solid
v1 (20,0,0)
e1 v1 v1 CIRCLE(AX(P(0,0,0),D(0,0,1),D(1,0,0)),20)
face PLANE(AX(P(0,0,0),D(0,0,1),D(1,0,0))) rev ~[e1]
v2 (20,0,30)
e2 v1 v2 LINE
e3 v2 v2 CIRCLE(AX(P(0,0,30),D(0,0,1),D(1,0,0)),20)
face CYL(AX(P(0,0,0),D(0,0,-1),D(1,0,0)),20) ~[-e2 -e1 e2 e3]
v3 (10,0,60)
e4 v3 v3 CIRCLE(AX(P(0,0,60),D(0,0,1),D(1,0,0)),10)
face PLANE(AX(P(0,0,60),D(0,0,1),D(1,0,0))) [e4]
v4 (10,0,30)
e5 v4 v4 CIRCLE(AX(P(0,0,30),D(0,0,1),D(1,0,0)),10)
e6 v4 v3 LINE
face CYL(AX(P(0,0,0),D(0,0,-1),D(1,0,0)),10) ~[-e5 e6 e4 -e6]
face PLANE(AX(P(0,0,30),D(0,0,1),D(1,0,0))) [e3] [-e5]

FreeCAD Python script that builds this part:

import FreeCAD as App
import Part
import Sketcher

doc = App.newDocument("Part")
body = doc.addObject("PartDesign::Body", "Body")

# Sketch on XY plane
sketch1 = doc.addObject("Sketcher::SketchObject", "Sketch")
body.addObject(sketch1)
sketch1.AttachmentSupport = (doc.XY_Plane, [""])
sketch1.MapMode = "FlatFace"
sketch1.addGeometry(Part.Circle(App.Vector(0, 0, 0), App.Vector(0, 0, 1), 10), False)
sketch1.addConstraint([
    Sketcher.Constraint("Coincident", 0, 3, -1, 1),
    Sketcher.Constraint("Diameter", 0, 20.0),
])
pad1 = doc.addObject("PartDesign::Pad", "Pad")
body.addObject(pad1)
pad1.Profile = sketch1
pad1.Length = 60

# Sketch on XY plane
sketch2 = doc.addObject("Sketcher::SketchObject", "Sketch001")
body.addObject(sketch2)
sketch2.AttachmentSupport = (doc.XY_Plane, [""])
sketch2.MapMode = "FlatFace"
sketch2.addGeometry([
    Part.Circle(App.Vector(0, 0, 0), App.Vector(0, 0, 1), 20),
    Part.Circle(App.Vector(0, 0, 0), App.Vector(0, 0, 1), 10),
], False)
sketch2.addConstraint([
    Sketcher.Constraint("Coincident", 0, 3, -1, 1),
    Sketcher.Constraint("Coincident", 1, 3, -1, 1),
    Sketcher.Constraint("Diameter", 0, 40.0),
    Sketcher.Constraint("Diameter", 1, 20.0),
])
pad2 = doc.addObject("PartDesign::Pad", "Pad001")
body.addObject(pad2)
pad2.Profile = sketch2
pad2.Length = 30

doc.recompute()
